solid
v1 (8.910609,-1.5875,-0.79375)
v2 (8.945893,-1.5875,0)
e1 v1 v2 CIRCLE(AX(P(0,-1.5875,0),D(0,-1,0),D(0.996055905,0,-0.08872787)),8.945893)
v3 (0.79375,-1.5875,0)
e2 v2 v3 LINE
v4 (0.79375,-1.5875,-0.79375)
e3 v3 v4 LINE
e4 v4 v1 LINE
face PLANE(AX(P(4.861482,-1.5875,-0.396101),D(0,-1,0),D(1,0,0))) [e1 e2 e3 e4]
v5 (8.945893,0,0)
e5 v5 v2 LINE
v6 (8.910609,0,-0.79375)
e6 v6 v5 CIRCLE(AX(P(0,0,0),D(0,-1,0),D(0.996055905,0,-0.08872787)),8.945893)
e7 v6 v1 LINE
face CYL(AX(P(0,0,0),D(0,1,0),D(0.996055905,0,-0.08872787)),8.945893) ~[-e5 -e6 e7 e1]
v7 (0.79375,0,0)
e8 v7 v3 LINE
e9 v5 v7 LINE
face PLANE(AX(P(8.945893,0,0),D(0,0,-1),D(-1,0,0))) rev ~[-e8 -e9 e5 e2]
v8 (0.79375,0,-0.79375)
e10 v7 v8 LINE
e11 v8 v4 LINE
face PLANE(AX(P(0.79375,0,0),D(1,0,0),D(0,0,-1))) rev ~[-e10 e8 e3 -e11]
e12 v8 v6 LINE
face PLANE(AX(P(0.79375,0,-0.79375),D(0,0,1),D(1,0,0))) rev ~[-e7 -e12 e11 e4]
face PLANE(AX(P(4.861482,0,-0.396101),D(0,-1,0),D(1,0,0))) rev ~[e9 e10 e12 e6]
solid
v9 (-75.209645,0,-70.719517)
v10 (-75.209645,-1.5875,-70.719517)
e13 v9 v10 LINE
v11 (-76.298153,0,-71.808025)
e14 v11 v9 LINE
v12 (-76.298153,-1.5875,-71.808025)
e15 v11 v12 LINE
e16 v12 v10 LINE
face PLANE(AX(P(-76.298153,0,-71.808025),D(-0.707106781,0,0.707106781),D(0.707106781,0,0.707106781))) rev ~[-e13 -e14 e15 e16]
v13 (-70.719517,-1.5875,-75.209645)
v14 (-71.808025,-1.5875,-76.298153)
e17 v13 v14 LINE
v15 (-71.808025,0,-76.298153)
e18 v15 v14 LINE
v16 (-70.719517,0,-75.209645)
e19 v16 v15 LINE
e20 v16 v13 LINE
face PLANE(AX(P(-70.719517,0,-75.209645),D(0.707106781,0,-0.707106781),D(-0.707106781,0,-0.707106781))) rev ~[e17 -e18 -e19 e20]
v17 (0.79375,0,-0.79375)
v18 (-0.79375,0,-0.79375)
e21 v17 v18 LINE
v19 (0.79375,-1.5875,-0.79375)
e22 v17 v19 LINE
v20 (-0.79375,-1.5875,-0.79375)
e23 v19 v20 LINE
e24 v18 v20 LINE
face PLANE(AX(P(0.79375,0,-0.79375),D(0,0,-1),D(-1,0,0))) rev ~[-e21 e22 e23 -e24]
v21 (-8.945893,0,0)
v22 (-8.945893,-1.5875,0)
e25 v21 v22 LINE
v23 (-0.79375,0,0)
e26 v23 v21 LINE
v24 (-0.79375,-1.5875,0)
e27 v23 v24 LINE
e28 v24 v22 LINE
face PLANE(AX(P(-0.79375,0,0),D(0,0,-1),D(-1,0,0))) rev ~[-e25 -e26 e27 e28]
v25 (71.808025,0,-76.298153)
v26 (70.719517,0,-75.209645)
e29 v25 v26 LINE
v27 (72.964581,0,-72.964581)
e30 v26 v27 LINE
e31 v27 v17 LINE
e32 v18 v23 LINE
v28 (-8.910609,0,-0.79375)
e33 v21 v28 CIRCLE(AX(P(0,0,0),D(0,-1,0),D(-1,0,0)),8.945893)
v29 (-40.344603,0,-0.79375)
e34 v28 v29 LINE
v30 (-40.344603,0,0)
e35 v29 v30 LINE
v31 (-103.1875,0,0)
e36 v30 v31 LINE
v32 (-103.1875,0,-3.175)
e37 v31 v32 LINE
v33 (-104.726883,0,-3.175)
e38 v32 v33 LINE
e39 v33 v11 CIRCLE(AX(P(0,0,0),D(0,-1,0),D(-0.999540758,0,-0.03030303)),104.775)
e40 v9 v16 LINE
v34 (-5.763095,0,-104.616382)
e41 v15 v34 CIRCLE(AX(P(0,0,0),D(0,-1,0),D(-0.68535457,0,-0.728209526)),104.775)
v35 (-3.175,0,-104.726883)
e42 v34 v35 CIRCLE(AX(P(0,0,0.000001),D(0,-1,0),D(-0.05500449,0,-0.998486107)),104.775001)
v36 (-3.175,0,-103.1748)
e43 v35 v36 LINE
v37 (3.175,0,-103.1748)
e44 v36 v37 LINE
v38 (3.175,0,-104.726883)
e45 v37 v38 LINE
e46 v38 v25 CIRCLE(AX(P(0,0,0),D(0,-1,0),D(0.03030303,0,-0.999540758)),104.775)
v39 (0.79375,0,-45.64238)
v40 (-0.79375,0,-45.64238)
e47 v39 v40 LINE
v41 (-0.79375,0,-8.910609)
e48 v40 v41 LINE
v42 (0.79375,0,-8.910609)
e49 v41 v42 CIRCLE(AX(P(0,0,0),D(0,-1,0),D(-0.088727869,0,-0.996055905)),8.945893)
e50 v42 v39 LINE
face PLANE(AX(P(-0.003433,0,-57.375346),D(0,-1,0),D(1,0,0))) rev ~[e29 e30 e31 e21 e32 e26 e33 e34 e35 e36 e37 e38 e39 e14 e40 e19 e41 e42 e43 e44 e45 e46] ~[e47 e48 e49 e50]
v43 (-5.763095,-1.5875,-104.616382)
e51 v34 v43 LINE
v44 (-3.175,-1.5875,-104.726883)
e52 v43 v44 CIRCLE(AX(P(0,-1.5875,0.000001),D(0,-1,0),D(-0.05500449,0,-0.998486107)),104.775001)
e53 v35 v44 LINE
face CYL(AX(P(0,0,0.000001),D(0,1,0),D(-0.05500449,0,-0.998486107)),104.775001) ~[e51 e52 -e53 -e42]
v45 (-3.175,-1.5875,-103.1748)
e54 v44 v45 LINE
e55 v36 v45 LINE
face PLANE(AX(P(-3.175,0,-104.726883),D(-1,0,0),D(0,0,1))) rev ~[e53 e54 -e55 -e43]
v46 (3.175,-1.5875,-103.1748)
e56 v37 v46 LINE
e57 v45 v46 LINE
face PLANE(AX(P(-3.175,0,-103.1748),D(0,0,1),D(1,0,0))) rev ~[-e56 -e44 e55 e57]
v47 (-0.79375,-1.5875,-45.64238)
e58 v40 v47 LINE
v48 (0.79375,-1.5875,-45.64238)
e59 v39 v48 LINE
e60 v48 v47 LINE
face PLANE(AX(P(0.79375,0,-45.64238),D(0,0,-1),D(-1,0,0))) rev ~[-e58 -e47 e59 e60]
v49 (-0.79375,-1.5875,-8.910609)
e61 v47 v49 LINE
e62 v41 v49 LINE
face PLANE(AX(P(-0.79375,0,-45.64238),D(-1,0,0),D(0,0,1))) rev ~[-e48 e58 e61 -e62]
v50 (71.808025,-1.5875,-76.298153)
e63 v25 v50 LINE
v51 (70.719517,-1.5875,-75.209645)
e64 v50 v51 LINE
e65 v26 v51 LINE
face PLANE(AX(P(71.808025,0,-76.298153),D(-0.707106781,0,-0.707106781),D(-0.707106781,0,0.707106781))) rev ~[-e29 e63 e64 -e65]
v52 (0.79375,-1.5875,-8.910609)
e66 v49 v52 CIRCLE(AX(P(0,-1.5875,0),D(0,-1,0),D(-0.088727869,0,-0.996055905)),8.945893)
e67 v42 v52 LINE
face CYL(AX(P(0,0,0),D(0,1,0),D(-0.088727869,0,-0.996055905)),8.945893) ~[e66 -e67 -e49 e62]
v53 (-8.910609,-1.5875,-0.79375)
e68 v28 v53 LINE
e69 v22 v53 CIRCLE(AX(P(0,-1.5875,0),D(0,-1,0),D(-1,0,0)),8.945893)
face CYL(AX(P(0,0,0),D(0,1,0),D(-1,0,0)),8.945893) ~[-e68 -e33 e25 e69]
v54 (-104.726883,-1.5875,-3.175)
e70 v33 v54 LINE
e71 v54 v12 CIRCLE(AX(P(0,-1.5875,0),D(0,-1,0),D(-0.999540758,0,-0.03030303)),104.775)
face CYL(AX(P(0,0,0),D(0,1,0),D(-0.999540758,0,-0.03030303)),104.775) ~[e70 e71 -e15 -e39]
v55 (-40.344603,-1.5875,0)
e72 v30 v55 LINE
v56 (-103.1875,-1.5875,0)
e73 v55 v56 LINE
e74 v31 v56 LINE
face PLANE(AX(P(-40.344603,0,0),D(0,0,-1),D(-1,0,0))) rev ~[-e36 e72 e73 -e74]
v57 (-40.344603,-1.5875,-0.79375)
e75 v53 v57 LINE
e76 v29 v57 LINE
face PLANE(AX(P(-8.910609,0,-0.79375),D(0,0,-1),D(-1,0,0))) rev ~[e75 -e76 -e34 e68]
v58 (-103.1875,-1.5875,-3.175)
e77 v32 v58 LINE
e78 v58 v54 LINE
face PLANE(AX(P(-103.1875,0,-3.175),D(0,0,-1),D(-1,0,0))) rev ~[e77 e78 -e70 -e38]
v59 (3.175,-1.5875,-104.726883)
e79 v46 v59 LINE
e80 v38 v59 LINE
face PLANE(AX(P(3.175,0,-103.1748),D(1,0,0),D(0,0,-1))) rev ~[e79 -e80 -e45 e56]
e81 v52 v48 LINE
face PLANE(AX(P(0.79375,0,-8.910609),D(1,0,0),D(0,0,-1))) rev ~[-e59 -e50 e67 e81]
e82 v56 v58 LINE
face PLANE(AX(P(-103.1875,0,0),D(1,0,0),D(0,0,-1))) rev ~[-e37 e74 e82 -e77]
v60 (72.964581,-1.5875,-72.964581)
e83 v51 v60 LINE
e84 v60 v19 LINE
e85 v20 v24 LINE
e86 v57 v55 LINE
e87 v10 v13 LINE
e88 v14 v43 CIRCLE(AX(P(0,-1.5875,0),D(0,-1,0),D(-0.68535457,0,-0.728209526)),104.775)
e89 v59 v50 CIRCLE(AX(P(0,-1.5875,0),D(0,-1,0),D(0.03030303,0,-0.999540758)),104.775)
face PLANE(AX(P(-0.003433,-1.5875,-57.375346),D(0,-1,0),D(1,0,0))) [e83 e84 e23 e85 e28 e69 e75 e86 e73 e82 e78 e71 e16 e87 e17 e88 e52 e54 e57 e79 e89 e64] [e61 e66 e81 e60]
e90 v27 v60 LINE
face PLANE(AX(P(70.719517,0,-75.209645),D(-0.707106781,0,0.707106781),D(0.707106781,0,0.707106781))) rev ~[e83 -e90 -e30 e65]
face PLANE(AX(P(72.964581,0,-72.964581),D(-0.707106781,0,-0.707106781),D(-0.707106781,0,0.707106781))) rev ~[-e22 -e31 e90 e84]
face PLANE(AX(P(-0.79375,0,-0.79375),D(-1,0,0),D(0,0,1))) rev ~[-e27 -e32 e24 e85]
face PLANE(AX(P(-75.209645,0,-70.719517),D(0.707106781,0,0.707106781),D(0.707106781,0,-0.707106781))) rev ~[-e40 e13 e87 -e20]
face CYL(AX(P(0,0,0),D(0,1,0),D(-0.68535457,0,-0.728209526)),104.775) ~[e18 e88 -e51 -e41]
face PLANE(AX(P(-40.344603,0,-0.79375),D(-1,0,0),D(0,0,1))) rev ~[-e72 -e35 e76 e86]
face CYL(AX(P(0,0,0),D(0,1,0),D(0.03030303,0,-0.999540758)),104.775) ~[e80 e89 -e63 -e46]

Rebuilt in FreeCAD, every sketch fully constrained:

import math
import FreeCAD as App
import Part
import Sketcher
from FreeCAD import Vector
Q = App.Units.Quantity

doc = App.newDocument("Part")
body = doc.addObject("PartDesign::Body", "Body")

# Sketch on XZ plane
sketch1 = doc.addObject("Sketcher::SketchObject", "Sketch")
body.addObject(sketch1)
sketch1.AttachmentSupport = (doc.XZ_Plane, [""])
sketch1.MapMode = "FlatFace"
sketch1.addGeometry(Part.ArcOfCircle(Part.Circle(Vector(0, 0, 0), Vector(0, 0, 1), 104.8), math.radians(-88), math.radians(-47)), False)
sketch1.addGeometry(Part.LineSegment(Vector(71.8, -76.3, 0), Vector(70.7, -75.2, 0)), False)
sketch1.addGeometry(Part.LineSegment(Vector(70.7, -75.2, 0), Vector(73, -73, 0)), False)
sketch1.addGeometry(Part.LineSegment(Vector(73, -73, 0), Vector(0.8, -0.8, 0)), False)
sketch1.addGeometry(Part.LineSegment(Vector(0.8, -0.8, 0), Vector(-0.8, -0.8, 0)), False)
sketch1.addGeometry(Part.LineSegment(Vector(-0.8, -0.8, 0), Vector(-0.8, 0, 0)), False)
sketch1.addGeometry(Part.LineSegment(Vector(-0.8, 0, 0), Vector(-8.9, 0, 0)), False)
sketch1.addGeometry(Part.ArcOfCircle(Part.Circle(Vector(0, 0, 0), Vector(0, 0, 1), 8.9), math.radians(180), math.radians(185.09)), False)
sketch1.addGeometry(Part.LineSegment(Vector(-8.9, -0.8, 0), Vector(-40.3, -0.8, 0)), False)
sketch1.addGeometry(Part.LineSegment(Vector(-40.3, -0.8, 0), Vector(-40.3, 0, 0)), False)
sketch1.addGeometry(Part.LineSegment(Vector(-40.3, 0, 0), Vector(-103.2, 0, 0)), False)
sketch1.addGeometry(Part.LineSegment(Vector(-103.2, 0, 0), Vector(-103.2, -3.2, 0)), False)
sketch1.addGeometry(Part.LineSegment(Vector(-103.2, -3.2, 0), Vector(-104.7, -3.2, 0)), False)
sketch1.addGeometry(Part.ArcOfCircle(Part.Circle(Vector(0, 0, 0), Vector(0, 0, 1), 104.8), math.radians(-178), math.radians(-137)), False)
sketch1.addGeometry(Part.LineSegment(Vector(-76.3, -71.8, 0), Vector(-75.2, -70.7, 0)), False)
sketch1.addGeometry(Part.LineSegment(Vector(-75.2, -70.7, 0), Vector(-70.7, -75.2, 0)), False)
sketch1.addGeometry(Part.LineSegment(Vector(-70.7, -75.2, 0), Vector(-71.8, -76.3, 0)), False)
sketch1.addGeometry(Part.ArcOfCircle(Part.Circle(Vector(0, 0, 0), Vector(0, 0, 1), 104.8), math.radians(-133), math.radians(-93)), False)
sketch1.addGeometry(Part.ArcOfCircle(Part.Circle(Vector(0, 0, 0), Vector(0, 0, 1), 104.8), math.radians(-93.15), math.radians(-91.74)), False)
sketch1.addGeometry(Part.LineSegment(Vector(-3.2, -104.7, 0), Vector(-3.2, -103.2, 0)), False)
sketch1.addGeometry(Part.LineSegment(Vector(-3.2, -103.2, 0), Vector(3.2, -103.2, 0)), False)
sketch1.addGeometry(Part.LineSegment(Vector(3.2, -103.2, 0), Vector(3.2, -104.7, 0)), False)
sketch1.addGeometry(Part.LineSegment(Vector(0.8, -8.9, 0), Vector(0.8, -45.6, 0)), False)
sketch1.addGeometry(Part.LineSegment(Vector(0.8, -45.6, 0), Vector(-0.8, -45.6, 0)), False)
sketch1.addGeometry(Part.LineSegment(Vector(-0.8, -45.6, 0), Vector(-0.8, -8.9, 0)), False)
sketch1.addGeometry(Part.ArcOfCircle(Part.Circle(Vector(0, 0, 0), Vector(0, 0, 1), 8.9), math.radians(-95.09), math.radians(-84.91)), False)
sketch1.addConstraint(Sketcher.Constraint("Coincident", 0, 2, 1, 1))
sketch1.addConstraint(Sketcher.Constraint("Coincident", 1, 2, 2, 1))
sketch1.addConstraint(Sketcher.Constraint("Coincident", 2, 2, 3, 1))
sketch1.addConstraint(Sketcher.Constraint("Coincident", 3, 2, 4, 1))
sketch1.addConstraint(Sketcher.Constraint("Coincident", 4, 2, 5, 1))
sketch1.addConstraint(Sketcher.Constraint("Coincident", 5, 2, 6, 1))
sketch1.addConstraint(Sketcher.Constraint("Coincident", 6, 2, 7, 1))
sketch1.addConstraint(Sketcher.Constraint("Coincident", 7, 2, 8, 1))
sketch1.addConstraint(Sketcher.Constraint("Coincident", 8, 2, 9, 1))
sketch1.addConstraint(Sketcher.Constraint("Coincident", 9, 2, 10, 1))
sketch1.addConstraint(Sketcher.Constraint("Coincident", 10, 2, 11, 1))
sketch1.addConstraint(Sketcher.Constraint("Coincident", 11, 2, 12, 1))
sketch1.addConstraint(Sketcher.Constraint("Coincident", 12, 2, 13, 1))
sketch1.addConstraint(Sketcher.Constraint("Coincident", 13, 2, 14, 1))
sketch1.addConstraint(Sketcher.Constraint("Coincident", 14, 2, 15, 1))
sketch1.addConstraint(Sketcher.Constraint("Coincident", 15, 2, 16, 1))
sketch1.addConstraint(Sketcher.Constraint("Coincident", 16, 2, 17, 1))
sketch1.addConstraint(Sketcher.Constraint("Tangent", 17, 2, 18, 1))
sketch1.addConstraint(Sketcher.Constraint("Coincident", 18, 2, 19, 1))
sketch1.addConstraint(Sketcher.Constraint("Coincident", 19, 2, 20, 1))
sketch1.addConstraint(Sketcher.Constraint("Coincident", 20, 2, 21, 1))
sketch1.addConstraint(Sketcher.Constraint("Coincident", 21, 2, 0, 1))
sketch1.addConstraint(Sketcher.Constraint("Coincident", 22, 2, 23, 1))
sketch1.addConstraint(Sketcher.Constraint("Coincident", 23, 2, 24, 1))
sketch1.addConstraint(Sketcher.Constraint("Coincident", 24, 2, 25, 1))
sketch1.addConstraint(Sketcher.Constraint("Coincident", 25, 2, 22, 1))
sketch1.addConstraint(Sketcher.Constraint("Horizontal", 4))
sketch1.addConstraint(Sketcher.Constraint("Vertical", 5))
sketch1.addConstraint(Sketcher.Constraint("Horizontal", 6))
sketch1.addConstraint(Sketcher.Constraint("Horizontal", 8))
sketch1.addConstraint(Sketcher.Constraint("Vertical", 9))
sketch1.addConstraint(Sketcher.Constraint("Horizontal", 10))
sketch1.addConstraint(Sketcher.Constraint("Vertical", 11))
sketch1.addConstraint(Sketcher.Constraint("Horizontal", 12))
sketch1.addConstraint(Sketcher.Constraint("Vertical", 19))
sketch1.addConstraint(Sketcher.Constraint("Horizontal", 20))
sketch1.addConstraint(Sketcher.Constraint("Vertical", 21))
sketch1.addConstraint(Sketcher.Constraint("Vertical", 22))
sketch1.addConstraint(Sketcher.Constraint("Horizontal", 23))
sketch1.addConstraint(Sketcher.Constraint("Vertical", 24))
sketch1.addConstraint(Sketcher.Constraint("Coincident", 0, 3, -1, 1))
sketch1.addConstraint(Sketcher.Constraint("Coincident", 7, 3, -1, 1))
sketch1.addConstraint(Sketcher.Constraint("Coincident", 13, 3, -1, 1))
sketch1.addConstraint(Sketcher.Constraint("Coincident", 17, 3, -1, 1))
sketch1.addConstraint(Sketcher.Constraint("Coincident", 25, 3, -1, 1))
sketch1.addConstraint(Sketcher.Constraint("Equal", 0, 13))
sketch1.addConstraint(Sketcher.Constraint("Equal", 13, 17))
sketch1.addConstraint(Sketcher.Constraint("Equal", 17, 18))
sketch1.addConstraint(Sketcher.Constraint("Equal", 7, 25))
sketch1.addConstraint(Sketcher.Constraint("Symmetric", 1, 2, 15, 2, -2))
sketch1.addConstraint(Sketcher.Constraint("PointOnObject", 5, 2, -1))
sketch1.addConstraint(Sketcher.Constraint("PointOnObject", 9, 2, -1))
sketch1.addConstraint(Sketcher.Constraint("Perpendicular", 1, 2))
sketch1.addConstraint(Sketcher.Constraint("Perpendicular", 2, 3))
sketch1.addConstraint(Sketcher.Constraint("Perpendicular", 3, 14))
sketch1.addConstraint(Sketcher.Constraint("Perpendicular", 14, 15))
sketch1.addConstraint(Sketcher.Constraint("Perpendicular", 15, 16))
sketch1.addConstraint(Sketcher.Constraint("Horizontal", 4, 2, 7, 2))
sketch1.addConstraint(Sketcher.Constraint("Horizontal", 18, 2, 21, 2))
sketch1.addConstraint(Sketcher.Constraint("Horizontal", 24, 2, 25, 2))
sketch1.addConstraint(Sketcher.Constraint("Vertical", 3, 2, 22, 2))
sketch1.addConstraint(Sketcher.Constraint("Vertical", 5, 2, 23, 2))
sketch1.addConstraint(Sketcher.Constraint("Equal", 1, 14))
sketch1.addConstraint(Sketcher.Constraint("Angle", 1, Q("135 deg")))
sketch1.addConstraint(Sketcher.Constraint("Radius", 0, Q("4.125 in")))
sketch1.addConstraint(Sketcher.Constraint("DistanceX", 20, 1, 20, 2, Q("0.25 in")))
sketch1.addConstraint(Sketcher.Constraint("Distance", 15, Q("0.25 in")))
sketch1.addConstraint(Sketcher.Constraint("DistanceX", 4, 2, 4, 1, Q("0.0625 in")))
sketch1.addConstraint(Sketcher.Constraint("DistanceY", 5, 1, 5, 2, Q("0.03125 in")))
sketch1.addConstraint(Sketcher.Constraint("DistanceY", 11, 2, 11, 1, Q("0.125 in")))
sketch1.addConstraint(Sketcher.Constraint("DistanceX", 10, 2, -1, 1, Q("4.0625 in")))
sketch1.addConstraint(Sketcher.Constraint("DistanceY", 19, 2, -1, 1, Q("4.062 in")))
sketch1.addConstraint(Sketcher.Constraint("Radius", 7, 8.945893))
sketch1.addConstraint(Sketcher.Constraint("DistanceY", 22, 2, 22, 1, 36.73177))
sketch1.addConstraint(Sketcher.Constraint("DistanceY", 18, 2, 17, 2, 0.110501))
sketch1.addConstraint(Sketcher.Constraint("DistanceX", 8, 2, 8, 1, 31.433994))
sketch1.addConstraint(Sketcher.Constraint("DistanceX", -1, 1, 2, 2, 72.964581))
pad1 = doc.addObject("PartDesign::Pad", "Pad")
body.addObject(pad1)
pad1.Profile = sketch1
pad1.Length = Q("0.0625 in")
body2 = doc.addObject("PartDesign::Body", "Body001")

# Sketch on XZ plane
sketch2 = doc.addObject("Sketcher::SketchObject", "Sketch001")
body2.addObject(sketch2)
sketch2.AttachmentSupport = (doc.getObject("XZ_Plane001"), [""])
sketch2.MapMode = "FlatFace"
sketch2.addGeometry(Part.ArcOfCircle(Part.Circle(Vector(0, 0, 0), Vector(0, 0, 1), 8.9), math.radians(-5.09), math.radians(0)), False)
sketch2.addGeometry(Part.LineSegment(Vector(8.9, 0, 0), Vector(0.8, 0, 0)), False)
sketch2.addGeometry(Part.LineSegment(Vector(0.8, 0, 0), Vector(0.8, -0.8, 0)), False)
sketch2.addGeometry(Part.LineSegment(Vector(0.8, -0.8, 0), Vector(8.9, -0.8, 0)), False)
sketch2.addConstraint(Sketcher.Constraint("Coincident", 0, 2, 1, 1))
sketch2.addConstraint(Sketcher.Constraint("Coincident", 1, 2, 2, 1))
sketch2.addConstraint(Sketcher.Constraint("Coincident", 2, 2, 3, 1))
sketch2.addConstraint(Sketcher.Constraint("Coincident", 3, 2, 0, 1))
sketch2.addConstraint(Sketcher.Constraint("Horizontal", 1))
sketch2.addConstraint(Sketcher.Constraint("Vertical", 2))
sketch2.addConstraint(Sketcher.Constraint("Horizontal", 3))
sketch2.addConstraint(Sketcher.Constraint("Coincident", 0, 3, -1, 1))
sketch2.addConstraint(Sketcher.Constraint("PointOnObject", 0, 2, -1))
sketch2.addConstraint(Sketcher.Constraint("DistanceY", 2, 2, 2, 1, Q("0.03125 in")))
sketch2.addConstraint(Sketcher.Constraint("DistanceX", -1, 1, 1, 2, Q("0.03125 in")))
sketch2.addConstraint(Sketcher.Constraint("Radius", 0, 8.945893))
pad2 = doc.addObject("PartDesign::Pad", "Pad001")
body2.addObject(pad2)
pad2.Profile = sketch2
pad2.Length = Q("0.0625 in")

doc.recompute()
